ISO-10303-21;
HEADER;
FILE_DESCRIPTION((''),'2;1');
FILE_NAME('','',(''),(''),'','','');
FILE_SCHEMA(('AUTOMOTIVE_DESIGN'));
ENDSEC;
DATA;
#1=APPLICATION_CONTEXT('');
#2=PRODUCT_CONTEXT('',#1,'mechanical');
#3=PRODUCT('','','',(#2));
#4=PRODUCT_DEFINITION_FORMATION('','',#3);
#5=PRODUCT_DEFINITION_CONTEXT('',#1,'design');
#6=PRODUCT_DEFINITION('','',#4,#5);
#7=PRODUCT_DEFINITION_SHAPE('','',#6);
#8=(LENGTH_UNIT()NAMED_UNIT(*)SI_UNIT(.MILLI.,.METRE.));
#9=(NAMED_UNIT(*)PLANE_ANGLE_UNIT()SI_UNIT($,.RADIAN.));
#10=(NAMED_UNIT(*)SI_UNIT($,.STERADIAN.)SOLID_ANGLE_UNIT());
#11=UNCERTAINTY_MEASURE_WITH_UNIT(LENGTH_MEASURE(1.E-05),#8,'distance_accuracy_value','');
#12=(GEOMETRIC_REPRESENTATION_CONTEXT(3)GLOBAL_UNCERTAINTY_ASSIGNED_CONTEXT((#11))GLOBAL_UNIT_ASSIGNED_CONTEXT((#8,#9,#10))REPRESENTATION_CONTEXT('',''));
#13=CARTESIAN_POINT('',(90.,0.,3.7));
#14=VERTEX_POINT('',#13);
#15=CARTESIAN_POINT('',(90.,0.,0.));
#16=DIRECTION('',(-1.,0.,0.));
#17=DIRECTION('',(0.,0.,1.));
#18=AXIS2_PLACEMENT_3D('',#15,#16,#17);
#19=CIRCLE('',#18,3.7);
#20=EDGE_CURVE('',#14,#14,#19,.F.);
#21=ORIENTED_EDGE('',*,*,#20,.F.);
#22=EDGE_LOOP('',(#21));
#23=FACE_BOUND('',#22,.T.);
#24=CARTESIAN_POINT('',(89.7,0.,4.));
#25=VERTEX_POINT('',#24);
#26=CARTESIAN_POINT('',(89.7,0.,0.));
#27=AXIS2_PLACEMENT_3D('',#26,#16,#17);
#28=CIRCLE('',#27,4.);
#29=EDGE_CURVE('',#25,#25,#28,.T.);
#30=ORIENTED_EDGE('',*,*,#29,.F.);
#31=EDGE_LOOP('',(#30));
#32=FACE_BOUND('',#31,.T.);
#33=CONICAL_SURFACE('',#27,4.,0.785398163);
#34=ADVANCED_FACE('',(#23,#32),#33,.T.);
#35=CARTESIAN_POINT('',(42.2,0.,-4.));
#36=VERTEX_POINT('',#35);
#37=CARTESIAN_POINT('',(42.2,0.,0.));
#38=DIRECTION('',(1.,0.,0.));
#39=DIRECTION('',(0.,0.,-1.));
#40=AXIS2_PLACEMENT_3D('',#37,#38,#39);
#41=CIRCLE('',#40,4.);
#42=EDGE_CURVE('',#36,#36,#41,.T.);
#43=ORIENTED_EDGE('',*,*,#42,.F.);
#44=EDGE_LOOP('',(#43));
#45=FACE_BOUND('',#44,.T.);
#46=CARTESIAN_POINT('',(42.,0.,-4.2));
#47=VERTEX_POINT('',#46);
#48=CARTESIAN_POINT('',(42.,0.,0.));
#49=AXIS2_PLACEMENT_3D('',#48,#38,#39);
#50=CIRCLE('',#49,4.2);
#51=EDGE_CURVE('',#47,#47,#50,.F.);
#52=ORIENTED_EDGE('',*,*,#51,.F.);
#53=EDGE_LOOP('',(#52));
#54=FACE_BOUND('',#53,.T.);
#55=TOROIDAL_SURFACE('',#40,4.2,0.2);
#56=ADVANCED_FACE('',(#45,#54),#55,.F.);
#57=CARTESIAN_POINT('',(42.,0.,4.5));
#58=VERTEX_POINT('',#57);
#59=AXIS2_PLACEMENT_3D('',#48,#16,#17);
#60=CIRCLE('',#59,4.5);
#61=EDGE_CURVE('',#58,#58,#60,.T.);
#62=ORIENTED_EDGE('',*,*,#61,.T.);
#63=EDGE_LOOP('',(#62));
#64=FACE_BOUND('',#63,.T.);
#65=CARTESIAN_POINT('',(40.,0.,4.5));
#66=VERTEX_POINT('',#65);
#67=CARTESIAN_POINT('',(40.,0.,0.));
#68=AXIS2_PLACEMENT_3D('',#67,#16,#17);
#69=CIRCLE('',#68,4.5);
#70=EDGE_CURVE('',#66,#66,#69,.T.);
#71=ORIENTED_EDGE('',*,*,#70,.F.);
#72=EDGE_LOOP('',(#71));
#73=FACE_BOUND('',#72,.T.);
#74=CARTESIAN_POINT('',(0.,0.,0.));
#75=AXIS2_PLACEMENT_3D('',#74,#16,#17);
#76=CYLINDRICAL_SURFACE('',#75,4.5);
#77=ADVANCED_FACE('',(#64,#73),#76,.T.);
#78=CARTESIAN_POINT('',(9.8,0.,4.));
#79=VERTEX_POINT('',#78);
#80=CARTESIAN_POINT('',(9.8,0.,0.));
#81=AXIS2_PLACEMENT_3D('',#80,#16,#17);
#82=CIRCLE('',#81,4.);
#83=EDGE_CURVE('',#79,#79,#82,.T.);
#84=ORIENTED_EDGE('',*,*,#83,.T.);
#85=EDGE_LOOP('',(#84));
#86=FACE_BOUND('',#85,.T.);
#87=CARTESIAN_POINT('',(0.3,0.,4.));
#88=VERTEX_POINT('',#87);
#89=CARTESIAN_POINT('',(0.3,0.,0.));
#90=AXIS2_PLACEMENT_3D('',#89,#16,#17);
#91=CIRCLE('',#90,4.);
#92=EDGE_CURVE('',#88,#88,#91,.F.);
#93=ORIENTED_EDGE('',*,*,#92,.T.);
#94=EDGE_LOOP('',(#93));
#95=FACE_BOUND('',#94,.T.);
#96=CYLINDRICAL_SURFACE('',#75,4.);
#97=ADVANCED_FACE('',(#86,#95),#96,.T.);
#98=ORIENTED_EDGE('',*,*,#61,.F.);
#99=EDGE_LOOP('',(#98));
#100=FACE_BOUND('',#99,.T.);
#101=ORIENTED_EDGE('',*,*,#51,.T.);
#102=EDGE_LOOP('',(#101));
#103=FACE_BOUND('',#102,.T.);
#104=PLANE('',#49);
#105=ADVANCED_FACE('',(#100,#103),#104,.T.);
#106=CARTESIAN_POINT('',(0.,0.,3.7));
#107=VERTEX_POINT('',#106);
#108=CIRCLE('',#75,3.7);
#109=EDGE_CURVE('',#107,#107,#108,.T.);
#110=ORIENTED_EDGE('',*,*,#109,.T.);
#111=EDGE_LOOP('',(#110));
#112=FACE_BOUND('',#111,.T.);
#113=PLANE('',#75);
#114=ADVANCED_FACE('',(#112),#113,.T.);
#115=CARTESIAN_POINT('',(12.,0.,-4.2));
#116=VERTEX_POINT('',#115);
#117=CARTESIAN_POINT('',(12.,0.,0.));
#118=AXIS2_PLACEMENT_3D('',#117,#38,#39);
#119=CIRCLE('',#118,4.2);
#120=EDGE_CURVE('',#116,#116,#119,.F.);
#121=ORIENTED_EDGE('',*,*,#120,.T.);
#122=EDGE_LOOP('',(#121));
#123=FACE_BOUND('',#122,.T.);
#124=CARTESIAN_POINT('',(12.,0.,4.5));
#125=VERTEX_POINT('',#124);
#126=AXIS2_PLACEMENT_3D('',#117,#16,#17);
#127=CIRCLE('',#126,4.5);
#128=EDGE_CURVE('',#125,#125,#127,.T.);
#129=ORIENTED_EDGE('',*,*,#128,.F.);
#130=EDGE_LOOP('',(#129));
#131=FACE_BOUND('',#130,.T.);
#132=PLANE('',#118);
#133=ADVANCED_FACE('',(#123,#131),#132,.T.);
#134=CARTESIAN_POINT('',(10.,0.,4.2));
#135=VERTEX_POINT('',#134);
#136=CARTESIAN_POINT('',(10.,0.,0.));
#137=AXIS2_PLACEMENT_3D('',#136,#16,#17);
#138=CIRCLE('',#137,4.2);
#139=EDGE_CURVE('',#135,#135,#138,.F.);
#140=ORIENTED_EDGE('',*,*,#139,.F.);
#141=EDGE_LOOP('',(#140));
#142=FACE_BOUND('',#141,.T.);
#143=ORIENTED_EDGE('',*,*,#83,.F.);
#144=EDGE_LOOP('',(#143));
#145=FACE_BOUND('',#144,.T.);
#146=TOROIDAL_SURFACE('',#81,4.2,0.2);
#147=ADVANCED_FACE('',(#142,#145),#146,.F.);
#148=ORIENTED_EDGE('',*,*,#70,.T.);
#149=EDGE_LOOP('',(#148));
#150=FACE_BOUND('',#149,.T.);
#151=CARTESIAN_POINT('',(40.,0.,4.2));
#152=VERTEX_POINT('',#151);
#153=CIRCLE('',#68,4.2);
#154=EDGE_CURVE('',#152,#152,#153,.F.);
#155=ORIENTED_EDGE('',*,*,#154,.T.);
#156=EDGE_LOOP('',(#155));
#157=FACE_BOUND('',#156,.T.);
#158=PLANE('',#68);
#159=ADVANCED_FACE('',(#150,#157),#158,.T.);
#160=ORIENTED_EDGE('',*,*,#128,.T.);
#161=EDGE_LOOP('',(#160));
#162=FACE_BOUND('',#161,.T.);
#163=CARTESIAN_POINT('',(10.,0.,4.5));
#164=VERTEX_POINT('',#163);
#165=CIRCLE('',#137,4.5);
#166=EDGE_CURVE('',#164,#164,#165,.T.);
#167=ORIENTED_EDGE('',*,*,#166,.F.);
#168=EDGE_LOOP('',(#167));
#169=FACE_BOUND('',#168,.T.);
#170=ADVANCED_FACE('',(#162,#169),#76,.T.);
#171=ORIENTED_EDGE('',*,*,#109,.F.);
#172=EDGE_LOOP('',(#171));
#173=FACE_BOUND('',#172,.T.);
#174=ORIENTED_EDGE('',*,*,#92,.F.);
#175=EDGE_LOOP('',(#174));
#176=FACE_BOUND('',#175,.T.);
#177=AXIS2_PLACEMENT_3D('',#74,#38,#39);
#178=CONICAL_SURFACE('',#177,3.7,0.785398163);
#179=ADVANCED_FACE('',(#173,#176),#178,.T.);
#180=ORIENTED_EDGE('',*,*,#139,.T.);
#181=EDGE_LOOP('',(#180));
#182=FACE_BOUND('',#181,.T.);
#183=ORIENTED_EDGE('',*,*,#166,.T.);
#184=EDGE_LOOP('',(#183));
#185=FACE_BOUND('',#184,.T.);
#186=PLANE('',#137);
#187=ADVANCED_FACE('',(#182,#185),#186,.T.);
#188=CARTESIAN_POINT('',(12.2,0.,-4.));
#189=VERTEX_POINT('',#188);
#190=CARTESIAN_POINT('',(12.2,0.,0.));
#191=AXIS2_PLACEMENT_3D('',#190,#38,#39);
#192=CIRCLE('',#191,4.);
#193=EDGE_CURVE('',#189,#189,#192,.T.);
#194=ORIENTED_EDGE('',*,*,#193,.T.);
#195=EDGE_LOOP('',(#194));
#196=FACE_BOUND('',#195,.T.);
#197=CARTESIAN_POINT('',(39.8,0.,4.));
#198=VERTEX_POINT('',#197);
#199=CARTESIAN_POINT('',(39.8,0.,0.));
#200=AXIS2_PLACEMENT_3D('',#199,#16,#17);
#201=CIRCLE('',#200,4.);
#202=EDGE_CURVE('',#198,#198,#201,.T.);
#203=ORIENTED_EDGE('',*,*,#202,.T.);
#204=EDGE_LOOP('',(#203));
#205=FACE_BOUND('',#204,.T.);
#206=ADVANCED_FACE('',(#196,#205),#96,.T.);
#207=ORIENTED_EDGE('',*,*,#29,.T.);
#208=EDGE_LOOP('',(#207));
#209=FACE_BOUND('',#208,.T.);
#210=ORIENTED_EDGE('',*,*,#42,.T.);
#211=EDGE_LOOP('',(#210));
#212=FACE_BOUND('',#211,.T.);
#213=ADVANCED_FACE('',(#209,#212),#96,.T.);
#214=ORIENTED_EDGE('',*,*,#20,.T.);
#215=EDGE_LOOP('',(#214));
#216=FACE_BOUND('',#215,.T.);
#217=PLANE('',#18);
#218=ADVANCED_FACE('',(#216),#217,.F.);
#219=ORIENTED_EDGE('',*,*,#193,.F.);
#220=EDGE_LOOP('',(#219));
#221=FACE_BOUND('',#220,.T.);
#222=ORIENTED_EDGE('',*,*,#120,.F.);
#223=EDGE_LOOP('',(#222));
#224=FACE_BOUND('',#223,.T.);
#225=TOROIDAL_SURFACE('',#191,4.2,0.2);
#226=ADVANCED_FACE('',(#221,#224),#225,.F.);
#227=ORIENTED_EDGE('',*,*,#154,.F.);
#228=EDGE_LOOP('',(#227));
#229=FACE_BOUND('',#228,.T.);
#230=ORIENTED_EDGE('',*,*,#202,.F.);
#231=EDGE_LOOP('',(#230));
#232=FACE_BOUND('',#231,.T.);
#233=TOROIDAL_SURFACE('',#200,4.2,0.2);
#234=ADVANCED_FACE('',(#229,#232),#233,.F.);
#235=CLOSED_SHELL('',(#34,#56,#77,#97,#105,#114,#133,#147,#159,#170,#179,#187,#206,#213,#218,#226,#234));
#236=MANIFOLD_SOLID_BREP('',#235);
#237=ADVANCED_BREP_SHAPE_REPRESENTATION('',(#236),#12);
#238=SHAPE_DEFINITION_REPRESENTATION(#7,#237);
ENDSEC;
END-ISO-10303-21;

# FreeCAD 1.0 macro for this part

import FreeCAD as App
import Part
import Sketcher
Q = App.Units.Quantity


def edges_at(feature, points):
    """Names of the edges that pass closest to the given points."""
    edges = feature.Shape.Edges
    near = lambda p: min(range(len(edges)), key=lambda i: edges[i].distToShape(Part.Vertex(*p))[0])
    return sorted({f"Edge{near(p) + 1}" for p in points})

doc = App.newDocument("Part")
body = doc.addObject("PartDesign::Body", "Body")

sketch1 = body.newObject("Sketcher::SketchObject", "Sketch")
sketch1.AttachmentSupport = (doc.getObject("XY_Plane"), [""])
sketch1.MapMode = "FlatFace"
sketch1.addGeometry(Part.LineSegment(App.Vector(0, 4, 0), App.Vector(0, 0, 0)), False)
sketch1.addGeometry(Part.LineSegment(App.Vector(0, 0, 0), App.Vector(90, 0, 0)), False)
sketch1.addGeometry(Part.LineSegment(App.Vector(90, 0, 0), App.Vector(90, 4, 0)), False)
sketch1.addGeometry(Part.LineSegment(App.Vector(90, 4, 0), App.Vector(42, 4, 0)), False)
sketch1.addGeometry(Part.LineSegment(App.Vector(42, 4, 0), App.Vector(42, 4.5, 0)), False)
sketch1.addGeometry(Part.LineSegment(App.Vector(42, 4.5, 0), App.Vector(40, 4.5, 0)), False)
sketch1.addGeometry(Part.LineSegment(App.Vector(40, 4.5, 0), App.Vector(40, 4, 0)), False)
sketch1.addGeometry(Part.LineSegment(App.Vector(40, 4, 0), App.Vector(12, 4, 0)), False)
sketch1.addGeometry(Part.LineSegment(App.Vector(12, 4, 0), App.Vector(12, 4.5, 0)), False)
sketch1.addGeometry(Part.LineSegment(App.Vector(12, 4.5, 0), App.Vector(10, 4.5, 0)), False)
sketch1.addGeometry(Part.LineSegment(App.Vector(10, 4.5, 0), App.Vector(10, 4, 0)), False)
sketch1.addGeometry(Part.LineSegment(App.Vector(10, 4, 0), App.Vector(0, 4, 0)), False)
sketch1.addConstraint(Sketcher.Constraint("Coincident", 0, 2, 1, 1))
sketch1.addConstraint(Sketcher.Constraint("Coincident", 1, 2, 2, 1))
sketch1.addConstraint(Sketcher.Constraint("Coincident", 2, 2, 3, 1))
sketch1.addConstraint(Sketcher.Constraint("Coincident", 3, 2, 4, 1))
sketch1.addConstraint(Sketcher.Constraint("Coincident", 4, 2, 5, 1))
sketch1.addConstraint(Sketcher.Constraint("Coincident", 5, 2, 6, 1))
sketch1.addConstraint(Sketcher.Constraint("Coincident", 6, 2, 7, 1))
sketch1.addConstraint(Sketcher.Constraint("Coincident", 7, 2, 8, 1))
sketch1.addConstraint(Sketcher.Constraint("Coincident", 8, 2, 9, 1))
sketch1.addConstraint(Sketcher.Constraint("Coincident", 9, 2, 10, 1))
sketch1.addConstraint(Sketcher.Constraint("Coincident", 10, 2, 11, 1))
sketch1.addConstraint(Sketcher.Constraint("Coincident", 11, 2, 0, 1))
sketch1.addConstraint(Sketcher.Constraint("Vertical", 0))
sketch1.addConstraint(Sketcher.Constraint("Horizontal", 1))
sketch1.addConstraint(Sketcher.Constraint("Vertical", 2))
sketch1.addConstraint(Sketcher.Constraint("Horizontal", 3))
sketch1.addConstraint(Sketcher.Constraint("Vertical", 4))
sketch1.addConstraint(Sketcher.Constraint("Horizontal", 5))
sketch1.addConstraint(Sketcher.Constraint("Vertical", 6))
sketch1.addConstraint(Sketcher.Constraint("Horizontal", 7))
sketch1.addConstraint(Sketcher.Constraint("Vertical", 8))
sketch1.addConstraint(Sketcher.Constraint("Horizontal", 9))
sketch1.addConstraint(Sketcher.Constraint("Vertical", 10))
sketch1.addConstraint(Sketcher.Constraint("Horizontal", 11))
sketch1.addConstraint(Sketcher.Constraint("Coincident", 0, 2, -1, 1))
sketch1.addConstraint(Sketcher.Constraint("Horizontal", 3, 2, 6, 2))
sketch1.addConstraint(Sketcher.Constraint("Horizontal", 5, 2, 8, 2))
sketch1.addConstraint(Sketcher.Constraint("Horizontal", 7, 2, 10, 2))
sketch1.addConstraint(Sketcher.Constraint("Equal", 5, 9))
sketch1.addConstraint(Sketcher.Constraint("DistanceX", 1, 1, 1, 2, Q("90 mm")))
sketch1.addConstraint(Sketcher.Constraint("DistanceX", 3, 2, 3, 1, Q("48 mm")))
sketch1.addConstraint(Sketcher.Constraint("DistanceX", 5, 2, 5, 1, Q("2 mm")))
sketch1.addConstraint(Sketcher.Constraint("DistanceX", 7, 2, 7, 1, Q("28 mm")))
sketch1.addConstraint(Sketcher.Constraint("DistanceY", 0, 2, 0, 1, Q("4 mm")))
sketch1.addConstraint(Sketcher.Constraint("DistanceY", 4, 1, 4, 2, Q("0.5 mm")))
revolution = body.newObject("PartDesign::Revolution", "Revolution")
revolution.Profile = sketch1
revolution.ReferenceAxis = (sketch1, ["H_Axis"])
revolution.Angle = 360
doc.recompute()

fillet = body.newObject("PartDesign::Fillet", "Fillet")
fillet.Base = (revolution, edges_at(revolution, [
    (10, 0, -4),
    (12, 0, -4),
    (40, 0, -4),
    (42, 0, -4),
]))
fillet.Radius = 0.2
doc.recompute()

chamfer = body.newObject("PartDesign::Chamfer", "Chamfer")
chamfer.Base = (fillet, edges_at(fillet, [(90, 0, -4), (0, 0, -4)]))
chamfer.Size = 0.3

doc.recompute()
